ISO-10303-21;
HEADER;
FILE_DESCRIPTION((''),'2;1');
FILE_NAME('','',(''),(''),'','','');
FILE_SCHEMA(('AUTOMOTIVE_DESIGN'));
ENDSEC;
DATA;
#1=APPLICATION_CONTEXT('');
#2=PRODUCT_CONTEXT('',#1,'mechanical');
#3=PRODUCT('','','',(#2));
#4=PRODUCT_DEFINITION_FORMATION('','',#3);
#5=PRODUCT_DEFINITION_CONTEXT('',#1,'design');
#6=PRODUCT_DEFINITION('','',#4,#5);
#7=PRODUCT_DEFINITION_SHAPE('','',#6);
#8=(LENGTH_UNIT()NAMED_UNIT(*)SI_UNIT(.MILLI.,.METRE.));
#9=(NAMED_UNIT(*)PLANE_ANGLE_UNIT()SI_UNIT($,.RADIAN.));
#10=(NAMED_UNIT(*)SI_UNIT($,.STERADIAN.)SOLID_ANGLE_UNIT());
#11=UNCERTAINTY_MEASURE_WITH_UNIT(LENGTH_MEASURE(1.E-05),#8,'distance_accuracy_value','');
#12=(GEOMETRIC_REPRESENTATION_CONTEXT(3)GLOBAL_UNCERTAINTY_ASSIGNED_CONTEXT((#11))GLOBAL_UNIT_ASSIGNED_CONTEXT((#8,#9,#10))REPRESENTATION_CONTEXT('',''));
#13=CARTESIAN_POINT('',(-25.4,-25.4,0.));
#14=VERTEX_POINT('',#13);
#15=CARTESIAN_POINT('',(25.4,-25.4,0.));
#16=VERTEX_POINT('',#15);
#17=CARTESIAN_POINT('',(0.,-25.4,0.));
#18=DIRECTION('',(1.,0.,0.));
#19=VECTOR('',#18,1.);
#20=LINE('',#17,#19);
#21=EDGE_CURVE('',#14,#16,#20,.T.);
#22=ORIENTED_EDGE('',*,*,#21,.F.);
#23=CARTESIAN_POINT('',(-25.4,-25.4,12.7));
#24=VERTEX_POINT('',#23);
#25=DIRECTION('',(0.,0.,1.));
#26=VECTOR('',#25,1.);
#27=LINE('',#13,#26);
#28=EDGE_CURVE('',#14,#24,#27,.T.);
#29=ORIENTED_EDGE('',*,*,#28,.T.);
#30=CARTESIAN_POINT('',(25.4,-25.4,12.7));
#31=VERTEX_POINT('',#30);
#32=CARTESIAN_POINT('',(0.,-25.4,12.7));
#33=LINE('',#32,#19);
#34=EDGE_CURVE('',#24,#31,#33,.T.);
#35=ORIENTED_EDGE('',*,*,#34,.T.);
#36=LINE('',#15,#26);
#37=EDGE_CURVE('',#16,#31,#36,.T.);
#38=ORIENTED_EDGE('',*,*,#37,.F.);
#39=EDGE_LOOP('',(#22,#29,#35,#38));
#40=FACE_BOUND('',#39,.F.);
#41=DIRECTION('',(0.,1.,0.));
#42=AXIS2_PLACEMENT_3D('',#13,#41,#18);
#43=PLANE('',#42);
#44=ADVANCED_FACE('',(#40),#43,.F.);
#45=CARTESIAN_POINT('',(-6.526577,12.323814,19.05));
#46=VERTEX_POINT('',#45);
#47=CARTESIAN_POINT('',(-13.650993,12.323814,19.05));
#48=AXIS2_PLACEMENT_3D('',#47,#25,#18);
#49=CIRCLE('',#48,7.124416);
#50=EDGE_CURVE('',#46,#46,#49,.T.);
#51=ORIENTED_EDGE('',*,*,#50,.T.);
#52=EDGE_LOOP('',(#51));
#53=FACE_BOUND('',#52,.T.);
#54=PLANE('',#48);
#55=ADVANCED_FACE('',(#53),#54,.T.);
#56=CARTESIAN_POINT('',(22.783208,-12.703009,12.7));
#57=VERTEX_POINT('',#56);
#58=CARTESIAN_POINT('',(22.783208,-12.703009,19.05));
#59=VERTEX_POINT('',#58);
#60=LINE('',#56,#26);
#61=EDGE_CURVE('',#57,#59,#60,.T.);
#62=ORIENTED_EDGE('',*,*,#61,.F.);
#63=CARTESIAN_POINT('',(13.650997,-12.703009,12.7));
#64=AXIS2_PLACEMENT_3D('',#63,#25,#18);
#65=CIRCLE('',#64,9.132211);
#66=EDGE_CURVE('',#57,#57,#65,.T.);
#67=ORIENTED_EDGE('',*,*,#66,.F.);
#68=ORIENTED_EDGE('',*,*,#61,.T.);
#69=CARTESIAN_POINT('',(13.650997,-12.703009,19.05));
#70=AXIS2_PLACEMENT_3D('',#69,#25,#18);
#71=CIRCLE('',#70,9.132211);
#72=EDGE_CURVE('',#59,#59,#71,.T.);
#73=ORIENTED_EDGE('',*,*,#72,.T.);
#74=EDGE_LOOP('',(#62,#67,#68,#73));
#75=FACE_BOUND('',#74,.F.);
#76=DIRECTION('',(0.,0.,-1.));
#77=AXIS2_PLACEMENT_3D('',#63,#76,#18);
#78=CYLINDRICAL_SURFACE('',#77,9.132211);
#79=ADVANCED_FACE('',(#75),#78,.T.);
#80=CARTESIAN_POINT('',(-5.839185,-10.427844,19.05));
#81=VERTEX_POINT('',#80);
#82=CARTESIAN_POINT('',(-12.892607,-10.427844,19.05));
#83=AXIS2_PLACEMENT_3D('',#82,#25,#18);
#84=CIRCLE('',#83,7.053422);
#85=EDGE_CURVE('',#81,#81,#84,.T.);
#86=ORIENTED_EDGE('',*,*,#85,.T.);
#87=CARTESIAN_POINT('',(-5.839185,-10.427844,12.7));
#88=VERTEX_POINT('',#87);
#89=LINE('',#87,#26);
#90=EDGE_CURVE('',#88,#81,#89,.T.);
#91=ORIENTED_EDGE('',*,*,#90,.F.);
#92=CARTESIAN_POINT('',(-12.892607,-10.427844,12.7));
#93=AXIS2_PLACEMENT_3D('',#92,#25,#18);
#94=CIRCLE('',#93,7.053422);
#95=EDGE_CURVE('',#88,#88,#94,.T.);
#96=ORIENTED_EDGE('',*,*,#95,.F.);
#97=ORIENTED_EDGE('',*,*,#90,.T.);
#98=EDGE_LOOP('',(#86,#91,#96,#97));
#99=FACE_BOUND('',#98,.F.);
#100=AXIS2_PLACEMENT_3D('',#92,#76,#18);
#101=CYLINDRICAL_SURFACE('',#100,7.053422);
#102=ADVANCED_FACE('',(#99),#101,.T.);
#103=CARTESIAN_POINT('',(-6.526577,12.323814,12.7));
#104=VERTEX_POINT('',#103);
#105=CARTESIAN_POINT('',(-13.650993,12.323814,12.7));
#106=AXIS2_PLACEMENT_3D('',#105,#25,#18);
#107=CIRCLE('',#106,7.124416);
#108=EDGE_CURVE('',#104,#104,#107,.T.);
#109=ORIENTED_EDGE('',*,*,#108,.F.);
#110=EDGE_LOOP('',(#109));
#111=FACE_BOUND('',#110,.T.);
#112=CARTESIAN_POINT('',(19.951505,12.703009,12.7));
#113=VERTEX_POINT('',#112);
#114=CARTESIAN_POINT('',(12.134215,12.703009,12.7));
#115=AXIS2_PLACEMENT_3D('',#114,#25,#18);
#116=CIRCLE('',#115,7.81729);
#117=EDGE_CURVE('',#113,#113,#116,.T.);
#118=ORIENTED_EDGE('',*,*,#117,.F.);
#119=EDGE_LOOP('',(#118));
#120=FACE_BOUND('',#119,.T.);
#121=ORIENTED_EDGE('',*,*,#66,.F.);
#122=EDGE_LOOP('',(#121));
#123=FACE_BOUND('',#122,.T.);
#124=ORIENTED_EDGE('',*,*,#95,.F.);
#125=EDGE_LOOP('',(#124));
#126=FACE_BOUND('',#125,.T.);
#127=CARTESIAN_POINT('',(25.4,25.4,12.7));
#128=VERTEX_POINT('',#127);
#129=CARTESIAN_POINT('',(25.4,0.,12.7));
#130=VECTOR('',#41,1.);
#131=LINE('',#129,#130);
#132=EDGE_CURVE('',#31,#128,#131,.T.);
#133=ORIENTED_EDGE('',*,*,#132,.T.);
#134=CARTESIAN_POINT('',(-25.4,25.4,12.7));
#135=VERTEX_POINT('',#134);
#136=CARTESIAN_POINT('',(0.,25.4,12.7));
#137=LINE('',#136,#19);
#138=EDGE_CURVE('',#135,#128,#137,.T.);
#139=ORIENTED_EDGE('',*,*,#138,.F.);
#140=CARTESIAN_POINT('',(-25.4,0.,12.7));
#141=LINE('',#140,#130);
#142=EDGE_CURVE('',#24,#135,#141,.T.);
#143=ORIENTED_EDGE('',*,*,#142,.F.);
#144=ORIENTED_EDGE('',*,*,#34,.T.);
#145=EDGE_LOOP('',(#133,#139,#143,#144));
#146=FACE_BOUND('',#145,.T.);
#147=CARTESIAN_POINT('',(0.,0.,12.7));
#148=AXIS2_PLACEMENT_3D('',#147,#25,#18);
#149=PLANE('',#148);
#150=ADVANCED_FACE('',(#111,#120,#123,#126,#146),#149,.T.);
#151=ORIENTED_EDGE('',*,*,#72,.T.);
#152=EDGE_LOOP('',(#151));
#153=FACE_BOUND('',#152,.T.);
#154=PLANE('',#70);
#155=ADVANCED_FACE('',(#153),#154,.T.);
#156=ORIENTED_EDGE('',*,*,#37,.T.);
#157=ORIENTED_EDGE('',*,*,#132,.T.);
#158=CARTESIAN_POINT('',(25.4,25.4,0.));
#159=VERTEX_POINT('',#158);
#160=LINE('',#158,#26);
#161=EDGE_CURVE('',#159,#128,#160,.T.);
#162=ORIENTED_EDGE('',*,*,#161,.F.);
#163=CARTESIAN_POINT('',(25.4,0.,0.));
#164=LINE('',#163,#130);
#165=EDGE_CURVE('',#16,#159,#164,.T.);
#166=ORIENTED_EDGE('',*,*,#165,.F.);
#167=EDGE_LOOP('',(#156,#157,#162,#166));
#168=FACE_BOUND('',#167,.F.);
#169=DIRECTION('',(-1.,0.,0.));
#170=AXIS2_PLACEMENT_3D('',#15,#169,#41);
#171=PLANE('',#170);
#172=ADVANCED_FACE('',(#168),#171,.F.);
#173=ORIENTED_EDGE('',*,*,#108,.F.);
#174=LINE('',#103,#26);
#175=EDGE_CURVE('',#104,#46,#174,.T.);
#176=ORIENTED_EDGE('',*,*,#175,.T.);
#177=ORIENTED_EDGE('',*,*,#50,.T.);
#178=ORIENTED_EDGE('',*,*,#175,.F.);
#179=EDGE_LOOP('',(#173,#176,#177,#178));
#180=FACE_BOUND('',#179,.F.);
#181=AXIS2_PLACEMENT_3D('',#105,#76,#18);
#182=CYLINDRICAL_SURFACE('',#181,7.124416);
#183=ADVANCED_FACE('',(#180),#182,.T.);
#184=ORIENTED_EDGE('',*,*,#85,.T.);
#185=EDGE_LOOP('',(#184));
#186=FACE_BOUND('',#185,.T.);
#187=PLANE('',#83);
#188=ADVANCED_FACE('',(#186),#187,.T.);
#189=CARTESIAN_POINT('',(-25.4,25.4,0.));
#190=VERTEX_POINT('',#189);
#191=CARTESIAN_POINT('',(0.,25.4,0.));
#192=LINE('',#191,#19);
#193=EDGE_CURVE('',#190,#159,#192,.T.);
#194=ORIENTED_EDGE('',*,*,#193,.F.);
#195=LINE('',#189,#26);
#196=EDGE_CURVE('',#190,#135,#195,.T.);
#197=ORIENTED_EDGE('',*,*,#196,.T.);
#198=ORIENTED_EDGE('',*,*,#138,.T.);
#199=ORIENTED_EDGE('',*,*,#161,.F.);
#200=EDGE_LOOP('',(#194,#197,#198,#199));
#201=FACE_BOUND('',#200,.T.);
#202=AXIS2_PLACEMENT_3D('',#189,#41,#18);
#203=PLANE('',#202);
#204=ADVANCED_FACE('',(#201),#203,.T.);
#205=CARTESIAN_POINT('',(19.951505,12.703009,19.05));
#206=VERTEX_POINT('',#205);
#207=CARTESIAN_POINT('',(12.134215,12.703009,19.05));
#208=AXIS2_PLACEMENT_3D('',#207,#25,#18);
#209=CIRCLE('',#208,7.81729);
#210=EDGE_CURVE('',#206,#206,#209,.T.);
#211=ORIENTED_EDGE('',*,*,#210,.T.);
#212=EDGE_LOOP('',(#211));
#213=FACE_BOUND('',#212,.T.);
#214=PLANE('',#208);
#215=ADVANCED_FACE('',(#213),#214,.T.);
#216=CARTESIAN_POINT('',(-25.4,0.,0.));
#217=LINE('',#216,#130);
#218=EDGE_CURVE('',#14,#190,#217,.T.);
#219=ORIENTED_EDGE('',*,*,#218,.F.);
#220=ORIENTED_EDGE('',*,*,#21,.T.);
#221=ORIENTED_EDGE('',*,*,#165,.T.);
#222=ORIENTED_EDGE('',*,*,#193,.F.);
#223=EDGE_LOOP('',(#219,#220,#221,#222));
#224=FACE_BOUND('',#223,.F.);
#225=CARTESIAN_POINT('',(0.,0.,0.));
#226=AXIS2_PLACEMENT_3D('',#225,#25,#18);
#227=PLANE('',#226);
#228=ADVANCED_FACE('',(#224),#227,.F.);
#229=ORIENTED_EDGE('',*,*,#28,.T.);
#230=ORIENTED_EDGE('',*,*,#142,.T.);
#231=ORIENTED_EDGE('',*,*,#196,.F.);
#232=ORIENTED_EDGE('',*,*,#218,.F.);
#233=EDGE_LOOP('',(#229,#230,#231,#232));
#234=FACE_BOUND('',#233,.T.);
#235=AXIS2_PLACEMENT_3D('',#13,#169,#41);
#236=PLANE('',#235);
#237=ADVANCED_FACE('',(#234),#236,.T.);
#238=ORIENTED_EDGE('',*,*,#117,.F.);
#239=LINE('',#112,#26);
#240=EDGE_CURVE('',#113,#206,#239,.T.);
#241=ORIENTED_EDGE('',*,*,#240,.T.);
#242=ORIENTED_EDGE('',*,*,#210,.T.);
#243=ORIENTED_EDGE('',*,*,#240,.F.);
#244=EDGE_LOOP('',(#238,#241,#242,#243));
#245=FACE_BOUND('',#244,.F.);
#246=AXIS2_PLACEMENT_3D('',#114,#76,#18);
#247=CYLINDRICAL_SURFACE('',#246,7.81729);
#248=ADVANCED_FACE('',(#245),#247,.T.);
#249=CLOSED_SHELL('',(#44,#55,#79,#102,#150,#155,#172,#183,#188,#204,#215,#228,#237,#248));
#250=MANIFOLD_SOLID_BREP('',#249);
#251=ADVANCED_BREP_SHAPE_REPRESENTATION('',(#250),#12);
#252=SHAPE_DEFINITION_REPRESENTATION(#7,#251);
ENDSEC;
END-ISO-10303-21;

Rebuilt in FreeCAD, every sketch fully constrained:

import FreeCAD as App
import Part
import Sketcher

V = App.Vector
Q = App.Units.Quantity


def add_polygon(sketch, points):
    """Adds a closed chain of lines whose ends are joined by coincident constraints."""
    first, n = sketch.GeometryCount, len(points)
    for a, b in zip(points, points[1:] + points[:1]):
        sketch.addGeometry(Part.LineSegment(App.Vector(*a, 0), App.Vector(*b, 0)), False)
    for i in range(n):
        sketch.addConstraint(Sketcher.Constraint("Coincident", first + i, 2, first + (i + 1) % n, 1))

doc = App.newDocument("Part")
body = doc.addObject("PartDesign::Body", "Body")

# Sketch on XY plane
sketch1 = body.newObject("Sketcher::SketchObject", "Sketch")
sketch1.AttachmentSupport = (doc.getObject("XY_Plane"), [""])
sketch1.MapMode = "FlatFace"
add_polygon(sketch1, [(-25, 25), (-25, -25), (25, -25), (25, 25)])  # lines 0-3
sketch1.addConstraint([
    Sketcher.Constraint("Vertical", 0),
    Sketcher.Constraint("Horizontal", 1),
    Sketcher.Constraint("Vertical", 2),
    Sketcher.Constraint("Horizontal", 3),
    Sketcher.Constraint("Symmetric", 0, 2, 2, 2, -1, 1),
    Sketcher.Constraint("Equal", 3, 0),
    Sketcher.Constraint("DistanceX", 1, 1, 1, 2, Q("2 in")),
])
pad1 = body.newObject("PartDesign::Pad", "Pad")
pad1.Profile = sketch1
pad1.Length = Q("0.5 in")

# Sketch on XY plane
sketch2 = body.newObject("Sketcher::SketchObject", "Sketch001")
sketch2.AttachmentSupport = (doc.getObject("XY_Plane"), [""])
sketch2.MapMode = "FlatFace"
sketch2.AttachmentOffset = App.Placement(V(0, 0, 0.5 * 25.4), App.Rotation())
sketch2.addGeometry(Part.Circle(V(-14, 12, 0), V(0, 0, 1), 7), False)
sketch2.addConstraint([
    Sketcher.Constraint("Diameter", 0, Q("14.248832 mm")),
    Sketcher.Constraint("DistanceX", 0, 3, -1, 1, Q("13.650993 mm")),
    Sketcher.Constraint("DistanceY", -1, 1, 0, 3, Q("12.323814 mm")),
])
pad2 = body.newObject("PartDesign::Pad", "Pad001")
pad2.Profile = sketch2
pad2.Length = Q("0.25 in")

# Sketch on XY plane
sketch3 = body.newObject("Sketcher::SketchObject", "Sketch002")
sketch3.AttachmentSupport = (doc.getObject("XY_Plane"), [""])
sketch3.MapMode = "FlatFace"
sketch3.AttachmentOffset = App.Placement(V(0, 0, 0.5 * 25.4), App.Rotation())
sketch3.addGeometry(Part.Circle(V(12, 13, 0), V(0, 0, 1), 8), False)
sketch3.addConstraint([
    Sketcher.Constraint("Diameter", 0, Q("15.63458 mm")),
    Sketcher.Constraint("DistanceY", -1, 1, 0, 3, Q("12.703009 mm")),
    Sketcher.Constraint("DistanceX", -1, 1, 0, 3, Q("12.134215 mm")),
])
pad3 = body.newObject("PartDesign::Pad", "Pad002")
pad3.Profile = sketch3
pad3.Length = Q("0.25 in")

# Sketch on XY plane
sketch4 = body.newObject("Sketcher::SketchObject", "Sketch003")
sketch4.AttachmentSupport = (doc.getObject("XY_Plane"), [""])
sketch4.MapMode = "FlatFace"
sketch4.AttachmentOffset = App.Placement(V(0, 0, 0.5 * 25.4), App.Rotation())
sketch4.addGeometry(Part.Circle(V(-13, -10, 0), V(0, 0, 1), 7), False)
sketch4.addConstraint([
    Sketcher.Constraint("Diameter", 0, Q("14.106844 mm")),
    Sketcher.Constraint("DistanceX", 0, 3, -1, 1, Q("12.892607 mm")),
    Sketcher.Constraint("DistanceY", 0, 3, -1, 1, Q("10.427844 mm")),
])
pad4 = body.newObject("PartDesign::Pad", "Pad003")
pad4.Profile = sketch4
pad4.Length = Q("0.25 in")

# Sketch on XY plane
sketch5 = body.newObject("Sketcher::SketchObject", "Sketch004")
sketch5.AttachmentSupport = (doc.getObject("XY_Plane"), [""])
sketch5.MapMode = "FlatFace"
sketch5.AttachmentOffset = App.Placement(V(0, 0, 0.5 * 25.4), App.Rotation())
sketch5.addGeometry(Part.Circle(V(14, -13, 0), V(0, 0, 1), 9), False)
sketch5.addConstraint([
    Sketcher.Constraint("Diameter", 0, Q("18.264422 mm")),
    Sketcher.Constraint("DistanceY", 0, 3, -1, 1, Q("12.703009 mm")),
    Sketcher.Constraint("DistanceX", -1, 1, 0, 3, Q("13.650997 mm")),
])
pad5 = body.newObject("PartDesign::Pad", "Pad004")
pad5.Profile = sketch5
pad5.Length = Q("0.25 in")

doc.recompute()
